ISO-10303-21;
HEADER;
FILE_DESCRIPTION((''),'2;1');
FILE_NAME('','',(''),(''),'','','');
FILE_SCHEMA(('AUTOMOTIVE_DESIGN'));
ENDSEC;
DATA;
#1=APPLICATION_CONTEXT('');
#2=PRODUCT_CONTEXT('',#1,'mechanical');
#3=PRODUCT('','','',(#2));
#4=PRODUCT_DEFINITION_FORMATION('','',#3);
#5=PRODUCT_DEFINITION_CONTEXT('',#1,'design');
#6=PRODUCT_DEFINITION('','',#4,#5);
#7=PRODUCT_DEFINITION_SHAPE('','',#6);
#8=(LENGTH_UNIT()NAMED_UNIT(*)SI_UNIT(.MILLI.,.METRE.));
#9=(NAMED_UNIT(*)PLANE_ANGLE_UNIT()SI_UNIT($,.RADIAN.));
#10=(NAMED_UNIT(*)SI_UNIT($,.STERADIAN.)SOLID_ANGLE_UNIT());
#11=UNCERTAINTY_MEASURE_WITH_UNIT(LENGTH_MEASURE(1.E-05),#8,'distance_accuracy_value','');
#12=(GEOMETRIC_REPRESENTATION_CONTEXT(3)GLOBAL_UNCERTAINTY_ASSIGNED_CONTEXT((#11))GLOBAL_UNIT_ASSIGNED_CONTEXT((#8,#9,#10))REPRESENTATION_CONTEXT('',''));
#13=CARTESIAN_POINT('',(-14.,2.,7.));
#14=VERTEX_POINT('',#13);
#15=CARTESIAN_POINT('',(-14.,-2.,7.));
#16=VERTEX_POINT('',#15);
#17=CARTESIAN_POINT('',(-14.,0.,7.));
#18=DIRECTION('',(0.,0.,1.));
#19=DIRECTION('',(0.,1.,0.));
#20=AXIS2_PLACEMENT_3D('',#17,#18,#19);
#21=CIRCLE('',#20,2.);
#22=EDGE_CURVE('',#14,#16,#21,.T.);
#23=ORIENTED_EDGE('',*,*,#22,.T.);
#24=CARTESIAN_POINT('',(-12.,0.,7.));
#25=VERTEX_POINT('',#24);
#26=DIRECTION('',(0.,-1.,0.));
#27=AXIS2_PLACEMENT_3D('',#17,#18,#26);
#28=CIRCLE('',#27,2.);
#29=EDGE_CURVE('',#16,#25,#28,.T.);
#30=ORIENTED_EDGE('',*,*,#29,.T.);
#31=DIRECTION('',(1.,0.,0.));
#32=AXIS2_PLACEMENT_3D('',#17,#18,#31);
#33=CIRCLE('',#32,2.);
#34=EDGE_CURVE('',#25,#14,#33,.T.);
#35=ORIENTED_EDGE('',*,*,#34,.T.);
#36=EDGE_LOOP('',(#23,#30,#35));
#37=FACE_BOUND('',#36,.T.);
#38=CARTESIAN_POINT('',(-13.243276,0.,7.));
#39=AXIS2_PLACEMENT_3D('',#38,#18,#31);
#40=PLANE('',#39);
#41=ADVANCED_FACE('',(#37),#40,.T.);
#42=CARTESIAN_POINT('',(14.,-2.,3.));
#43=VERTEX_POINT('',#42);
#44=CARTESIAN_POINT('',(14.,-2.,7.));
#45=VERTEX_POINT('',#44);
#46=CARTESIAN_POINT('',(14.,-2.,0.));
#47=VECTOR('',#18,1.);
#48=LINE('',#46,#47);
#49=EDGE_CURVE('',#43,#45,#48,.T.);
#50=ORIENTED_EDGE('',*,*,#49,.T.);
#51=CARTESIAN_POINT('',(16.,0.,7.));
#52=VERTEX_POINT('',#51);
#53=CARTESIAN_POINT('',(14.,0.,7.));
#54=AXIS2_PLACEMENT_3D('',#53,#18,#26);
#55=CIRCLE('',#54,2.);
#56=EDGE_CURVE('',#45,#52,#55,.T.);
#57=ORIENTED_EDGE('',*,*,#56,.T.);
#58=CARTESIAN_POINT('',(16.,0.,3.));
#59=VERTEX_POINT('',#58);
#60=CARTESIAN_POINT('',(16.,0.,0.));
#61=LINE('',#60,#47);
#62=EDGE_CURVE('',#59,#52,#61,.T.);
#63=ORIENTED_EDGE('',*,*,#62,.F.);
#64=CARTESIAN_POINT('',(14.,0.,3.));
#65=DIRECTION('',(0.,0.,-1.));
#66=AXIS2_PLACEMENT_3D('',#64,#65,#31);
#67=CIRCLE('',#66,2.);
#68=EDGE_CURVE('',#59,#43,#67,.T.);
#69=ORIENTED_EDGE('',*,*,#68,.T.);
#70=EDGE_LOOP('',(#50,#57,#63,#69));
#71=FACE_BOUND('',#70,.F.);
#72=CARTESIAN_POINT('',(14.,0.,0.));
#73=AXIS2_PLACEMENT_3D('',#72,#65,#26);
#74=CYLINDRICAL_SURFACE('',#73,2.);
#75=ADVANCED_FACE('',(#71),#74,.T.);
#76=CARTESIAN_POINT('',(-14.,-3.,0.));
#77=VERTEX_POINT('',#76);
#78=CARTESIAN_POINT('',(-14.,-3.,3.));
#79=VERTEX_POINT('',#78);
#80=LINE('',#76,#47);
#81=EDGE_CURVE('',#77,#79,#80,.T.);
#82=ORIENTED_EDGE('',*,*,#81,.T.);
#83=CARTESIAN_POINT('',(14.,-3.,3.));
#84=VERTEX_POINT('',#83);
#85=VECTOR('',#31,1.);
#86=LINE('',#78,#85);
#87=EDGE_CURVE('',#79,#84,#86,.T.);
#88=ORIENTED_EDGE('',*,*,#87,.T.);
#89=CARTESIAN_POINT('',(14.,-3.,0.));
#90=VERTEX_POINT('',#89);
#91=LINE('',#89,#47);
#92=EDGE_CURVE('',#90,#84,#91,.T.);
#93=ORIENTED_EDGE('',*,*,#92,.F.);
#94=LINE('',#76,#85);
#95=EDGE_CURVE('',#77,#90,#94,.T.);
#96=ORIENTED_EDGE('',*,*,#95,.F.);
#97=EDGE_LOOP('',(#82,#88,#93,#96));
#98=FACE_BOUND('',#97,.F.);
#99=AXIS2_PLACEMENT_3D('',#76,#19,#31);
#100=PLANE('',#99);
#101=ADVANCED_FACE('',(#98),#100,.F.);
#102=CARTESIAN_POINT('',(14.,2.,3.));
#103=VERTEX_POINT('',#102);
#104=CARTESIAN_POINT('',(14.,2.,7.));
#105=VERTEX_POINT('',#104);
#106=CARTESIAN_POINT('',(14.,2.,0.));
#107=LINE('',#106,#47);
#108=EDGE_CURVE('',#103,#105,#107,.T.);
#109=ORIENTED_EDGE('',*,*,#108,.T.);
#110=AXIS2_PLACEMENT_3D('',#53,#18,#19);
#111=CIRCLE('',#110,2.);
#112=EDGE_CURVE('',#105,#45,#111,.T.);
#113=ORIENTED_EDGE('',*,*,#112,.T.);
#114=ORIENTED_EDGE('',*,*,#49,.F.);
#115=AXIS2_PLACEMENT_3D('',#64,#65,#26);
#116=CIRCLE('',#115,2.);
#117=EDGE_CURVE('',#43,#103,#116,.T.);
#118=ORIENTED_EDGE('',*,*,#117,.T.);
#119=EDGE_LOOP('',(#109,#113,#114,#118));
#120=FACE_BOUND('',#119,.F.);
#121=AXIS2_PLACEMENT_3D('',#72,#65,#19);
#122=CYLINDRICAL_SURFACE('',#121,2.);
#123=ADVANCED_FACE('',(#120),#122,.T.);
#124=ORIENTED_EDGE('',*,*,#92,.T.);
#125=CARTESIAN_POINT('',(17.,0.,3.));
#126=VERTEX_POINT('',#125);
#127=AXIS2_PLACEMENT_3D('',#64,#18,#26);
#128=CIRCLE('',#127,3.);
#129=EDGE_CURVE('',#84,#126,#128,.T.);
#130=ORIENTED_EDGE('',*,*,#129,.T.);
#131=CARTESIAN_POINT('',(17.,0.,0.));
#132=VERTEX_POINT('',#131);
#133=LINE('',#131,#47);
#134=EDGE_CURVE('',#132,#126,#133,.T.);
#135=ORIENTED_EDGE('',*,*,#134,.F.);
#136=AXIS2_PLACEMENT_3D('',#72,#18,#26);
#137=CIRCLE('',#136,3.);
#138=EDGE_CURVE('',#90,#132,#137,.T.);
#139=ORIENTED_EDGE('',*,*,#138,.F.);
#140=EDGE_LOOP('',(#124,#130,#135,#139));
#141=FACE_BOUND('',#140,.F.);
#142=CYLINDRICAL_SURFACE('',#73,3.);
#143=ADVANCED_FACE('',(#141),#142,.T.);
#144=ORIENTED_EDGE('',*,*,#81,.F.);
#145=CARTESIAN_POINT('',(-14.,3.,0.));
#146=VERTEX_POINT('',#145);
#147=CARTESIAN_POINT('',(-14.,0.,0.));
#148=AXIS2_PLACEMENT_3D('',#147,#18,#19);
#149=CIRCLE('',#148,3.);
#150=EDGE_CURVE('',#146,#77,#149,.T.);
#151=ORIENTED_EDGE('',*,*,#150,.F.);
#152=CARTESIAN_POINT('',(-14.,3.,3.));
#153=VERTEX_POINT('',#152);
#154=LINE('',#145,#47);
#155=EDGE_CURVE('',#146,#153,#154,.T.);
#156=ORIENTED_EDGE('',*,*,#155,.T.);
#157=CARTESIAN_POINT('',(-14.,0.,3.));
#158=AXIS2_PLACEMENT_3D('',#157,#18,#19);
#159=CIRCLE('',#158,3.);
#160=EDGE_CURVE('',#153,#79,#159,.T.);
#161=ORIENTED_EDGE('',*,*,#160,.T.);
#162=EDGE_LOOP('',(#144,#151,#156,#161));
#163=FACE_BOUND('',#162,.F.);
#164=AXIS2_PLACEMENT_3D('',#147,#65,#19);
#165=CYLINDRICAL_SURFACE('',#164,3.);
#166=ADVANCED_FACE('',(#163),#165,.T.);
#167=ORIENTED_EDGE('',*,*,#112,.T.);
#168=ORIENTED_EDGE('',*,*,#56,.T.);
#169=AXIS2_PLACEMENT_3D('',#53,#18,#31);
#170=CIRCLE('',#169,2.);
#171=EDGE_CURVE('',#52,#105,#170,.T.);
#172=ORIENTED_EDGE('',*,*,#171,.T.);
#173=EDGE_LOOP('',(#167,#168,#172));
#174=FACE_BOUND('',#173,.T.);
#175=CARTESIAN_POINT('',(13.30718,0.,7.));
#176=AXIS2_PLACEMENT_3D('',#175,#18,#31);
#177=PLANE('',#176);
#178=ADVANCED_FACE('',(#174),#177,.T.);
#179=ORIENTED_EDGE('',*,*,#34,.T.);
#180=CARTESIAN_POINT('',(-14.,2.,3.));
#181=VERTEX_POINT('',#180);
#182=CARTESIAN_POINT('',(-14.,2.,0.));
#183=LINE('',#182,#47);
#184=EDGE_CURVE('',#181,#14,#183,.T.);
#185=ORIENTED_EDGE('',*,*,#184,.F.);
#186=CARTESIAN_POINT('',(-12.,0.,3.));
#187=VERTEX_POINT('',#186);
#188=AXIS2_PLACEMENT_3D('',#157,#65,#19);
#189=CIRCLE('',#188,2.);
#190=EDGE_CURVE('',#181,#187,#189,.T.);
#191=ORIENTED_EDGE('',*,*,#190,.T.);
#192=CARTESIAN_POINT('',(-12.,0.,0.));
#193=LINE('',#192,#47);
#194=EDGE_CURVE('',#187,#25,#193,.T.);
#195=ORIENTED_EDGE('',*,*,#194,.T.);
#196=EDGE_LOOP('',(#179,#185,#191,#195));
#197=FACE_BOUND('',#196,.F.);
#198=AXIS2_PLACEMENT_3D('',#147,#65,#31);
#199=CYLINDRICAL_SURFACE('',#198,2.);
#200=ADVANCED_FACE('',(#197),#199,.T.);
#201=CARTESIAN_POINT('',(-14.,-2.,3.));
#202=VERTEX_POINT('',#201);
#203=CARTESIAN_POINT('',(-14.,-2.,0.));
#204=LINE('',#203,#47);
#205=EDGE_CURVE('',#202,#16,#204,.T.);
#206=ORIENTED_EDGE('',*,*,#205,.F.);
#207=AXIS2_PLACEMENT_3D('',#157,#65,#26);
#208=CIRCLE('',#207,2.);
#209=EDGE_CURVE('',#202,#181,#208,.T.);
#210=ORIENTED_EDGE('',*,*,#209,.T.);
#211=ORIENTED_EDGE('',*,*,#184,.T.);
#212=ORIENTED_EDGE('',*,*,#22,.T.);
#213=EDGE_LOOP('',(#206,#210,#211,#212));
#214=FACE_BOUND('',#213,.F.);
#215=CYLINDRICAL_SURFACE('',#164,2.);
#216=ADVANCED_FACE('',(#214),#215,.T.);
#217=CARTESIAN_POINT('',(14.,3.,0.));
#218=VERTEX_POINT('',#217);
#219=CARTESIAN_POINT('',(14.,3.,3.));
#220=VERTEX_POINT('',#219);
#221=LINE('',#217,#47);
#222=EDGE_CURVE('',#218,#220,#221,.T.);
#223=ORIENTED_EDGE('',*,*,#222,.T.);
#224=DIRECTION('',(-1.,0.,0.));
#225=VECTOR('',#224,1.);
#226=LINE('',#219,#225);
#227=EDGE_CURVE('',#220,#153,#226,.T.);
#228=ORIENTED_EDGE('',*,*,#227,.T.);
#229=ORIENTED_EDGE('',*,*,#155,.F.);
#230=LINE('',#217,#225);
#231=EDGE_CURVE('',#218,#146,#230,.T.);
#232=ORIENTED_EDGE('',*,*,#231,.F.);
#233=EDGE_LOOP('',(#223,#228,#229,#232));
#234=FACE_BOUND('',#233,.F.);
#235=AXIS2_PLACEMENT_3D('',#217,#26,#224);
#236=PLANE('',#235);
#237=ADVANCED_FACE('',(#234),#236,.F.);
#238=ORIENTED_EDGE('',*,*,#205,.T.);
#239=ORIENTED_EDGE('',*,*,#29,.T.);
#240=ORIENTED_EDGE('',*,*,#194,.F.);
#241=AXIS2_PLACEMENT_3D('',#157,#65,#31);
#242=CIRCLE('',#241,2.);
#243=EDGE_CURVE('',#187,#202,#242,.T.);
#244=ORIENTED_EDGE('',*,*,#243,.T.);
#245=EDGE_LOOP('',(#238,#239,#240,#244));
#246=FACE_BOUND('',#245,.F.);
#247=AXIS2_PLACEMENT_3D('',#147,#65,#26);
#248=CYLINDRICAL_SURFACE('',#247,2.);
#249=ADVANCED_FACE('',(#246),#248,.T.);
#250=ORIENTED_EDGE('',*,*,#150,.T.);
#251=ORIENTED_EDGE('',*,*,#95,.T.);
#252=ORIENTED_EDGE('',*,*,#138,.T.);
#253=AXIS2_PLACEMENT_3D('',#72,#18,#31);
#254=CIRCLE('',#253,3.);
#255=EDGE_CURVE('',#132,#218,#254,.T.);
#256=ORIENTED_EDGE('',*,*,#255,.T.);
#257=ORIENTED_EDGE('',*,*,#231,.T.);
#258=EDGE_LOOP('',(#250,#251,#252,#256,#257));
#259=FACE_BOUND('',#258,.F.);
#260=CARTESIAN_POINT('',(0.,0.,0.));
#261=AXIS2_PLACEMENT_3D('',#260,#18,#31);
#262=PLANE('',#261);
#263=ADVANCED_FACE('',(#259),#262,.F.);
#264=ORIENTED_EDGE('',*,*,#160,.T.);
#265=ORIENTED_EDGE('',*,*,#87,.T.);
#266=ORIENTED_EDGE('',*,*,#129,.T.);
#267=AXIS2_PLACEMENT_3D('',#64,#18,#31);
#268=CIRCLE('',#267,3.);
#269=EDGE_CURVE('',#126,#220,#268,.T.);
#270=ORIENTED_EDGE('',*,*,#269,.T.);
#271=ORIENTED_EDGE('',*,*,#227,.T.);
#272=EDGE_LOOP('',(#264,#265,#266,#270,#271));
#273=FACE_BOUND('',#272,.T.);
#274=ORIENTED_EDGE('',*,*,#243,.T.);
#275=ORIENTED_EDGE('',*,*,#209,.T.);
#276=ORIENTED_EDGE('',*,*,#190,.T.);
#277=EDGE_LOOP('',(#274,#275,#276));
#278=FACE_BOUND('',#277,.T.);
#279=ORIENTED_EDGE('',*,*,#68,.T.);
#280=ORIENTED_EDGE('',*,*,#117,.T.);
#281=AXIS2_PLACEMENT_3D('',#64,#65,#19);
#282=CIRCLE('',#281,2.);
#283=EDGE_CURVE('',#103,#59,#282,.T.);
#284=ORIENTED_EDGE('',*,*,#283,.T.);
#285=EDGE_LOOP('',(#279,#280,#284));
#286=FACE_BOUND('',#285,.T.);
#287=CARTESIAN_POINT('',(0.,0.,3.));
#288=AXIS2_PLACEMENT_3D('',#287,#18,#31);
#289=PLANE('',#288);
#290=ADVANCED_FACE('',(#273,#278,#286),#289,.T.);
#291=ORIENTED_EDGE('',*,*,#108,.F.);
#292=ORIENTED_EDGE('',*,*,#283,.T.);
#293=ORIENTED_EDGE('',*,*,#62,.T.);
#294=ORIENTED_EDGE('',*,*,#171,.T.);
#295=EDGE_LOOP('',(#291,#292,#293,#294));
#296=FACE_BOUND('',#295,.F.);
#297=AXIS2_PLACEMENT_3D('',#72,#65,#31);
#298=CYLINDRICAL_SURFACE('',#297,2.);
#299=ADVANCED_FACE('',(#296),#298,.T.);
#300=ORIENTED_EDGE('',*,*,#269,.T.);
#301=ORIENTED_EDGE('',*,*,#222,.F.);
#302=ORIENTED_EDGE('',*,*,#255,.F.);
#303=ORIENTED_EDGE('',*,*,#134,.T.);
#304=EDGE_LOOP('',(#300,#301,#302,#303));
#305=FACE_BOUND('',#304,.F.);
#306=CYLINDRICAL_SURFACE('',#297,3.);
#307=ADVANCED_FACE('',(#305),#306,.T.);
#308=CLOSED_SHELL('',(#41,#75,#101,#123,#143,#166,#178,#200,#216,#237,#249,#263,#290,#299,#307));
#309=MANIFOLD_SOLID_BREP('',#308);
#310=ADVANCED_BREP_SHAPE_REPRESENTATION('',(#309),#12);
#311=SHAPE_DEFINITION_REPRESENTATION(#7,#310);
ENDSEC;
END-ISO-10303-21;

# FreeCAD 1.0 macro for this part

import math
import FreeCAD as App
import Part
import Sketcher

V = App.Vector
Q = App.Units.Quantity

doc = App.newDocument("Part")
params = doc.addObject("Spreadsheet::Sheet", "Params")
for row, (alias, value) in enumerate([
    ("sketch1_radius", "3 mm"),
    ("sketch1_radius2", "2 mm"),
    ("sketch1_width", "28 mm"),
    ("pad1_length", "3 mm"),
    ("sketch2_radius", "2 mm"),
    ("pad2_length", "7 mm"),
], start=1):
    params.set(f"A{row}", alias)
    params.set(f"B{row}", "=" + value)
    params.setAlias(f"B{row}", alias)

body = doc.addObject("PartDesign::Body", "Body")

# Sketch on XY plane
sketch1 = body.newObject("Sketcher::SketchObject", "Sketch")
sketch1.AttachmentSupport = (doc.getObject("XY_Plane"), [""])
sketch1.MapMode = "FlatFace"
sketch1.addGeometry([
    Part.LineSegment(V(14, 3, 0), V(-14, 3, 0)),  # 0
    Part.ArcOfCircle(Part.Circle(V(-14, 0, 0), V(0, 0, 1), 3), math.radians(90), math.radians(270)),  # 1
    Part.LineSegment(V(-14, -3, 0), V(14, -3, 0)),  # 2
    Part.ArcOfCircle(Part.Circle(V(14, 0, 0), V(0, 0, 1), 3), math.radians(-90), math.radians(0)),  # 3
    Part.ArcOfCircle(Part.Circle(V(14, 0, 0), V(0, 0, 1), 3), math.radians(0), math.radians(90)),  # 4
    Part.ArcOfCircle(Part.Circle(V(-14, 0, 0), V(0, 0, 1), 2), math.radians(0), math.radians(90)),  # 5
    Part.ArcOfCircle(Part.Circle(V(-14, 0, 0), V(0, 0, 1), 2), math.radians(-90), math.radians(0)),  # 6
    Part.ArcOfCircle(Part.Circle(V(-14, 0, 0), V(0, 0, 1), 2), math.radians(90), math.radians(270)),  # 7
    Part.ArcOfCircle(Part.Circle(V(14, 0, 0), V(0, 0, 1), 2), math.radians(90), math.radians(270)),  # 8
    Part.ArcOfCircle(Part.Circle(V(14, 0, 0), V(0, 0, 1), 2), math.radians(0), math.radians(90)),  # 9
    Part.ArcOfCircle(Part.Circle(V(14, 0, 0), V(0, 0, 1), 2), math.radians(-90), math.radians(0)),  # 10
], False)
sketch1.addConstraint([
    Sketcher.Constraint("Tangent", 0, 2, 1, 1),
    Sketcher.Constraint("Tangent", 1, 2, 2, 1),
    Sketcher.Constraint("Tangent", 2, 2, 3, 1),
    Sketcher.Constraint("Tangent", 3, 2, 4, 1),
    Sketcher.Constraint("Tangent", 4, 2, 0, 1),
    Sketcher.Constraint("Tangent", 5, 1, 6, 2),
    Sketcher.Constraint("Tangent", 6, 1, 7, 2),
    Sketcher.Constraint("Tangent", 7, 1, 5, 2),
    Sketcher.Constraint("Tangent", 8, 1, 9, 2),
    Sketcher.Constraint("Tangent", 9, 1, 10, 2),
    Sketcher.Constraint("Tangent", 10, 1, 8, 2),
    Sketcher.Constraint("Horizontal", 0),
    Sketcher.Constraint("Horizontal", 2),
    Sketcher.Constraint("Coincident", 5, 3, 1, 3),
    Sketcher.Constraint("Coincident", 8, 3, 3, 3),
    Sketcher.Constraint("Equal", 1, 3),
    Sketcher.Constraint("Equal", 7, 8),
    Sketcher.Constraint("Symmetric", 1, 3, 3, 3, -1, 1),
    Sketcher.Constraint("PointOnObject", 3, 2, -1),
    Sketcher.Constraint("PointOnObject", 5, 1, -1),
    Sketcher.Constraint("PointOnObject", 9, 1, -1),
    Sketcher.Constraint("Vertical", 1, 2, 6, 1),
    Sketcher.Constraint("Vertical", 6, 1, 7, 1),
    Sketcher.Constraint("Vertical", 4, 2, 8, 1),
    Sketcher.Constraint("Vertical", 8, 1, 10, 1),
    Sketcher.Constraint("Radius", 1, Q("3 mm")),
    Sketcher.Constraint("Radius", 5, Q("2 mm")),
    Sketcher.Constraint("DistanceX", 0, 2, 0, 1, Q("28 mm")),
])
sketch1.setExpression("Constraints[25]", "Params.sketch1_radius")
sketch1.setExpression("Constraints[26]", "Params.sketch1_radius2")
sketch1.setExpression("Constraints[27]", "Params.sketch1_width")
pad1 = body.newObject("PartDesign::Pad", "Pad")
pad1.Profile = sketch1
pad1.setExpression("Length", "Params.pad1_length")

# Sketch on XY plane
sketch2 = body.newObject("Sketcher::SketchObject", "Sketch001")
sketch2.AttachmentSupport = (doc.getObject("XY_Plane"), [""])
sketch2.MapMode = "FlatFace"
sketch2.addGeometry([
    Part.ArcOfCircle(Part.Circle(V(14, 0, 0), V(0, 0, 1), 2), math.radians(90), math.radians(270)),  # 0
    Part.ArcOfCircle(Part.Circle(V(14, 0, 0), V(0, 0, 1), 2), math.radians(-90), math.radians(0)),  # 1
    Part.ArcOfCircle(Part.Circle(V(14, 0, 0), V(0, 0, 1), 2), math.radians(0), math.radians(90)),  # 2
    Part.ArcOfCircle(Part.Circle(V(-14, 0, 0), V(0, 0, 1), 2), math.radians(0), math.radians(90)),  # 3
    Part.ArcOfCircle(Part.Circle(V(-14, 0, 0), V(0, 0, 1), 2), math.radians(90), math.radians(270)),  # 4
    Part.ArcOfCircle(Part.Circle(V(-14, 0, 0), V(0, 0, 1), 2), math.radians(-90), math.radians(0)),  # 5
], False)
sketch2.addConstraint([
    Sketcher.Constraint("Tangent", 0, 2, 1, 1),
    Sketcher.Constraint("Tangent", 1, 2, 2, 1),
    Sketcher.Constraint("Tangent", 2, 2, 0, 1),
    Sketcher.Constraint("Tangent", 3, 2, 4, 1),
    Sketcher.Constraint("Tangent", 4, 2, 5, 1),
    Sketcher.Constraint("Tangent", 5, 2, 3, 1),
    Sketcher.Constraint("Equal", 2, 3),
    Sketcher.Constraint("Symmetric", 0, 3, 3, 3, -1, 1),
    Sketcher.Constraint("Symmetric", 2, 2, 3, 2, -2),
    Sketcher.Constraint("PointOnObject", 1, 2, -1),
    Sketcher.Constraint("PointOnObject", 5, 2, -1),
    Sketcher.Constraint("Vertical", 2, 3, 0, 2),
    Sketcher.Constraint("Vertical", 0, 2, 2, 2),
    Sketcher.Constraint("Vertical", 3, 2, 4, 2),
    Sketcher.Constraint("Radius", 0, Q("2 mm")),
    Sketcher.Constraint("DistanceX", -1, 1, 0, 3, Q("14 mm")),
])
sketch2.setExpression("Constraints[14]", "Params.sketch2_radius")
pad2 = body.newObject("PartDesign::Pad", "Pad001")
pad2.Profile = sketch2
pad2.setExpression("Length", "Params.pad2_length")

doc.recompute()
